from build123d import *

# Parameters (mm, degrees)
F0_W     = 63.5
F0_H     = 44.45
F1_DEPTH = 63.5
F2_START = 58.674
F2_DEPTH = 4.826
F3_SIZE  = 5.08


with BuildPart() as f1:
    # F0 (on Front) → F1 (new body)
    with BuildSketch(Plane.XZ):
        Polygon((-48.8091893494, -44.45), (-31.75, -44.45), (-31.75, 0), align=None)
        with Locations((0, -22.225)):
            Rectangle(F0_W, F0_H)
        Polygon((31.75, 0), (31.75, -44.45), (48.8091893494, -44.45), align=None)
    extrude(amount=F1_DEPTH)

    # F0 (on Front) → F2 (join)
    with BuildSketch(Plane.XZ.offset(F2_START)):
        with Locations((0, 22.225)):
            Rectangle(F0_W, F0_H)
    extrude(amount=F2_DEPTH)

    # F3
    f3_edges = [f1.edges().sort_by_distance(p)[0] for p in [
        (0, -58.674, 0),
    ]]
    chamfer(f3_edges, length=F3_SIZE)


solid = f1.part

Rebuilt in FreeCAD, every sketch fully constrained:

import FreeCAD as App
import Part
import Sketcher
from FreeCAD import Vector
Q = App.Units.Quantity


def edges_at(feature, points):
    """Names of the edges that pass closest to the given points."""
    edges = feature.Shape.Edges
    near = lambda p: min(range(len(edges)), key=lambda i: edges[i].distToShape(Part.Vertex(*p))[0])
    return sorted({f"Edge{near(p) + 1}" for p in points})


def add_polygon(sketch, points):
    """Adds a closed chain of lines whose ends are joined by coincident constraints."""
    first, n = sketch.GeometryCount, len(points)
    for a, b in zip(points, points[1:] + points[:1]):
        sketch.addGeometry(Part.LineSegment(App.Vector(*a, 0), App.Vector(*b, 0)), False)
    for i in range(n):
        sketch.addConstraint(Sketcher.Constraint("Coincident", first + i, 2, first + (i + 1) % n, 1))

doc = App.newDocument("Part")
params = doc.addObject("Spreadsheet::Sheet", "Params")
for row, (alias, value) in enumerate([
    ("sketch1_width", "2.5 in"),
    ("pad1_length", "2.5 in"),
    ("sketch2_width", "2.5 in"),
    ("sketch2_height", "1.75 in"),
    ("pad2_length", "0.19 in"),
    ("chamfer_size", "0.2 in"),
], start=1):
    params.set(f"A{row}", alias)
    params.set(f"B{row}", "=" + value)
    params.setAlias(f"B{row}", alias)

body = doc.addObject("PartDesign::Body", "Body")

sketch1 = body.newObject("Sketcher::SketchObject", "Sketch")
sketch1.AttachmentSupport = (doc.getObject("XZ_Plane"), [""])
sketch1.MapMode = "FlatFace"
add_polygon(sketch1, [(-32, 0), (-49, -44), (49, -44), (32, 0)])
sketch1.addConstraint([
    Sketcher.Constraint("Horizontal", 1),
    Sketcher.Constraint("Horizontal", 3),
    Sketcher.Constraint("Symmetric", 2, 2, 3, 2, -1, 1),
    Sketcher.Constraint("Equal", 0, 2),
    Sketcher.Constraint("DistanceX", 3, 2, 3, 1, Q("2.5 in")),
    Sketcher.Constraint("DistanceY", 0, 2, -1, 1, Q("1.75 in")),
    Sketcher.Constraint("DistanceX", 1, 1, 1, 2, Q("97.618379 mm")),
])
sketch1.setExpression("Constraints[8]", "Params.sketch1_width")
pad1 = body.newObject("PartDesign::Pad", "Pad")
pad1.Profile = sketch1
pad1.setExpression("Length", "Params.pad1_length")

sketch2 = body.newObject("Sketcher::SketchObject", "Sketch001")
sketch2.AttachmentSupport = (doc.getObject("XZ_Plane"), [""])
sketch2.MapMode = "FlatFace"
sketch2.AttachmentOffset = App.Placement(Vector(0, 0, 2.31 * 25.4), App.Rotation())
add_polygon(sketch2, [(-32, 44), (-32, 0), (32, 0), (32, 44)])
sketch2.addConstraint([
    Sketcher.Constraint("Vertical", 0),
    Sketcher.Constraint("Horizontal", 1),
    Sketcher.Constraint("Vertical", 2),
    Sketcher.Constraint("Horizontal", 3),
    Sketcher.Constraint("Symmetric", 0, 2, 1, 2, -1, 1),
    Sketcher.Constraint("DistanceX", 1, 1, 1, 2, Q("2.5 in")),
    Sketcher.Constraint("DistanceY", 0, 2, 0, 1, Q("1.75 in")),
])
sketch2.setExpression("Constraints[9]", "Params.sketch2_width")
sketch2.setExpression("Constraints[10]", "Params.sketch2_height")
pad2 = body.newObject("PartDesign::Pad", "Pad001")
pad2.Profile = sketch2
pad2.setExpression("Length", "Params.pad2_length")
doc.recompute()

chamfer = body.newObject("PartDesign::Chamfer", "Chamfer")
chamfer.Base = (pad2, edges_at(pad2, [(0, -58.674, 0)]))
chamfer.setExpression("Size", "Params.chamfer_size")

doc.recompute()
